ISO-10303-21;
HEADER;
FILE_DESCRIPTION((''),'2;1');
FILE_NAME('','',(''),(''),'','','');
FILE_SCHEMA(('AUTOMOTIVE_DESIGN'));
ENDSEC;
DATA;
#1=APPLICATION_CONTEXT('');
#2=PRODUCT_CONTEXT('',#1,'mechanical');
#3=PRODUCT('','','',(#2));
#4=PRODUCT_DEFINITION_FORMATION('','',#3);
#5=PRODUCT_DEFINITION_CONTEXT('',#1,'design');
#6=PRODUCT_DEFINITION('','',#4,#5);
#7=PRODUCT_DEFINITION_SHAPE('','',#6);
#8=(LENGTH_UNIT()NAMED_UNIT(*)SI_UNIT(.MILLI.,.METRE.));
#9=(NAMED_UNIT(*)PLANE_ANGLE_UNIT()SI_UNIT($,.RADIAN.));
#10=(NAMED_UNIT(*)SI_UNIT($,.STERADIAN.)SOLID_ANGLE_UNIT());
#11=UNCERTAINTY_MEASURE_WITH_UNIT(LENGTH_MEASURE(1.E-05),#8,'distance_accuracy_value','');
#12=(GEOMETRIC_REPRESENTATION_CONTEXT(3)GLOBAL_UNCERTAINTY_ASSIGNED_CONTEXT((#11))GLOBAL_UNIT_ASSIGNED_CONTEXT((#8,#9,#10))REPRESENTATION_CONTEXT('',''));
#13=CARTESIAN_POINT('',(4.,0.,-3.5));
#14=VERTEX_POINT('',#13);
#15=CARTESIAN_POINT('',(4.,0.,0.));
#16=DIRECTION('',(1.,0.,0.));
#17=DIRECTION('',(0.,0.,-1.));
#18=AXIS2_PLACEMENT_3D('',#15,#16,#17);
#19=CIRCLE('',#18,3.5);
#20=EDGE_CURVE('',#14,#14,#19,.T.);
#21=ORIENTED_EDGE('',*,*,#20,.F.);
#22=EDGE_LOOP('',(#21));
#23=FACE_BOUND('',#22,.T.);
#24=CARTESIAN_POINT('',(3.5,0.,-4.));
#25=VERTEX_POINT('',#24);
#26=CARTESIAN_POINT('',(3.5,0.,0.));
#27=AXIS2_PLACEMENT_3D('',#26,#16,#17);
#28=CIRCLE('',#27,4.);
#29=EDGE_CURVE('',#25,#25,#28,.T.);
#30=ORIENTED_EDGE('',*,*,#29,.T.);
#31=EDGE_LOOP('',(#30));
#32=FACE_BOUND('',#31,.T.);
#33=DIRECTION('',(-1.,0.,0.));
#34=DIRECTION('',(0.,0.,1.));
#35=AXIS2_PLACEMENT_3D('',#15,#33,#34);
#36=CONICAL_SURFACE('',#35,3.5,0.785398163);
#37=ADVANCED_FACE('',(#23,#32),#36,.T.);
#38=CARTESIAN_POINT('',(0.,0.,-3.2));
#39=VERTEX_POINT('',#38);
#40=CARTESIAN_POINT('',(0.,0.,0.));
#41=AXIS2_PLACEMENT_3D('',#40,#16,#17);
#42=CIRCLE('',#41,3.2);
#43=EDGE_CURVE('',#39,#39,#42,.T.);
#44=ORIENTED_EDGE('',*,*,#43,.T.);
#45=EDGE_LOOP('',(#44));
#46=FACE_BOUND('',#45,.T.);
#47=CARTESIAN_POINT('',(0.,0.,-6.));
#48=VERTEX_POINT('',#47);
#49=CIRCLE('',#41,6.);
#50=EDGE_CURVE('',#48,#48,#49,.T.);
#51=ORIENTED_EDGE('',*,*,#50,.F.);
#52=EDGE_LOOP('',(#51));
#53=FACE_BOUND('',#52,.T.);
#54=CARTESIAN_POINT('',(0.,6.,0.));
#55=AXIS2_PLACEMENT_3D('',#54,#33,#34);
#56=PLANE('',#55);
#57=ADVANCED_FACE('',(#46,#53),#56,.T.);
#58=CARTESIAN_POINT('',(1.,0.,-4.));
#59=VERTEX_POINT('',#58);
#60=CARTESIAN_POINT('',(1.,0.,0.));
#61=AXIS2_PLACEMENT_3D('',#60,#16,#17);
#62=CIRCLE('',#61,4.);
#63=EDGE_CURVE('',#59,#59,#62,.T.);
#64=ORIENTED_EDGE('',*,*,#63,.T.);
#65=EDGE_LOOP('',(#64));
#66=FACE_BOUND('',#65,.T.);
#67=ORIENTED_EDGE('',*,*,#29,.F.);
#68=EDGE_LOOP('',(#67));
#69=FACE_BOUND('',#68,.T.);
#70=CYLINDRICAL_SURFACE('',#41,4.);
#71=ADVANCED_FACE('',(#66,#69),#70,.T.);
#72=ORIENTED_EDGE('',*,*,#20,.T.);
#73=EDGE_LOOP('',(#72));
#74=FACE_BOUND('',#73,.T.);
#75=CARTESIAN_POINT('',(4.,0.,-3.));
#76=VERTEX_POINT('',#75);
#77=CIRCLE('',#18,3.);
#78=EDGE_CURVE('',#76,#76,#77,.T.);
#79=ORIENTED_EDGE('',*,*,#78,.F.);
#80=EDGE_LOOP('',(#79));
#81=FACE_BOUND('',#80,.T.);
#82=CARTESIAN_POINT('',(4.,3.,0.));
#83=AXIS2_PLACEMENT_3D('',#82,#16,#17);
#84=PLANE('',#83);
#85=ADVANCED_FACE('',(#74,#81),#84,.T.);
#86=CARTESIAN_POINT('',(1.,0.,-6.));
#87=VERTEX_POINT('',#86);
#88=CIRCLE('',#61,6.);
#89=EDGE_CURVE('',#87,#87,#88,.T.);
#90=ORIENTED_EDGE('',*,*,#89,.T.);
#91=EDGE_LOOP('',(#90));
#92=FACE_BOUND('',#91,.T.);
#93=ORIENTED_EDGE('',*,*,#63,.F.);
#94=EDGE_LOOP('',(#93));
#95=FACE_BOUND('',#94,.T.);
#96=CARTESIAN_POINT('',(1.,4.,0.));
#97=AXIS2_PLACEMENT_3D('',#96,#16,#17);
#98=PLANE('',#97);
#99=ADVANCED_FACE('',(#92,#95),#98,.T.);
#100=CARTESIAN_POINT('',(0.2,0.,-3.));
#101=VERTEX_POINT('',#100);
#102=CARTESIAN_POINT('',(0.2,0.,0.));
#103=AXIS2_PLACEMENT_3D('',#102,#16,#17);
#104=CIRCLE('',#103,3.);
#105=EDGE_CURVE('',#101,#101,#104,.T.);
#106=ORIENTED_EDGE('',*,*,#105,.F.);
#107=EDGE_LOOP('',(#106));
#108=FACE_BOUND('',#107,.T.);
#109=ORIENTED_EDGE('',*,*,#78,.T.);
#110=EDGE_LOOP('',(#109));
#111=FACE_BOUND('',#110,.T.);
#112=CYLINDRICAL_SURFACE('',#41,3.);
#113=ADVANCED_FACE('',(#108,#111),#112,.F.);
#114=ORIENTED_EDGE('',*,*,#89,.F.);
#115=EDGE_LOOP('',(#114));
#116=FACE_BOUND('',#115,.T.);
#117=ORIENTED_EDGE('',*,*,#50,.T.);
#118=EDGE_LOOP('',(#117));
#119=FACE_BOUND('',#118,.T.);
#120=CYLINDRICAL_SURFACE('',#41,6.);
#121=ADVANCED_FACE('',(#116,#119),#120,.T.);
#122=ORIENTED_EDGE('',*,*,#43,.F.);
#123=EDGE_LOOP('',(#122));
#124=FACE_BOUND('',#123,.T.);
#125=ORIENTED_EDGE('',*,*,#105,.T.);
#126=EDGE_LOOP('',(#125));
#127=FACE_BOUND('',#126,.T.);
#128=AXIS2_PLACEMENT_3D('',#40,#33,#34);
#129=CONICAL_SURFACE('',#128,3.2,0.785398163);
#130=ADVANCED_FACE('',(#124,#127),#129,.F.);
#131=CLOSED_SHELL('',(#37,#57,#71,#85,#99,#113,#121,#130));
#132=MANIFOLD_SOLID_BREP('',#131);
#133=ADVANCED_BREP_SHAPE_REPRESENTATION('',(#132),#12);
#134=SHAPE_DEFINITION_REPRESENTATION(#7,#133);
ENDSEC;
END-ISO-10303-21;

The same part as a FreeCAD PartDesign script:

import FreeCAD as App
import Part
import Sketcher

V = App.Vector
Q = App.Units.Quantity


def add_polygon(sketch, points):
    """Adds a closed chain of lines whose ends are joined by coincident constraints."""
    first, n = sketch.GeometryCount, len(points)
    for a, b in zip(points, points[1:] + points[:1]):
        sketch.addGeometry(Part.LineSegment(App.Vector(*a, 0), App.Vector(*b, 0)), False)
    for i in range(n):
        sketch.addConstraint(Sketcher.Constraint("Coincident", first + i, 2, first + (i + 1) % n, 1))

doc = App.newDocument("Part")
params = doc.addObject("Spreadsheet::Sheet", "Params")
for row, (alias, value) in enumerate([
    ("sketch1_width", "1 mm"),
    ("sketch1_height", "2 mm"),
    ("sketch1_width2", "3.8 mm"),
    ("sketch1_width3", "2.5 mm"),
    ("sketch1_height2", "2.8 mm"),
    ("revolution_angle", "360 deg"),
], start=1):
    params.set(f"A{row}", alias)
    params.set(f"B{row}", "=" + value)
    params.setAlias(f"B{row}", alias)

body = doc.addObject("PartDesign::Body", "Body")

# Sketch on XY plane
sketch1 = body.newObject("Sketcher::SketchObject", "Sketch")
sketch1.AttachmentSupport = (doc.getObject("XY_Plane"), [""])
sketch1.MapMode = "FlatFace"
add_polygon(sketch1, [(0, 6), (0, 3.2), (0.2, 3), (4, 3), (4, 3.5), (3.5, 4), (1, 4), (1, 6)])  # lines 0-7
sketch1.addConstraint(Sketcher.Constraint("Vertical", 0))
sketch1.addConstraint(Sketcher.Constraint("Horizontal", 2))
sketch1.addConstraint(Sketcher.Constraint("Vertical", 3))
sketch1.addConstraint(Sketcher.Constraint("Horizontal", 5))
sketch1.addConstraint(Sketcher.Constraint("Vertical", 6))
sketch1.addConstraint(Sketcher.Constraint("Horizontal", 7))
sketch1.addConstraint(Sketcher.Constraint("PointOnObject", 0, 2, -2))
sketch1.addConstraint(Sketcher.Constraint("Parallel", 1, 4))
sketch1.addConstraint(Sketcher.Constraint("DistanceX", 7, 2, 7, 1, Q("1 mm")))
sketch1.addConstraint(Sketcher.Constraint("DistanceY", 6, 1, 6, 2, Q("2 mm")))
sketch1.addConstraint(Sketcher.Constraint("Angle", 1, Q("-45 deg")))
sketch1.addConstraint(Sketcher.Constraint("DistanceX", 2, 1, 2, 2, Q("3.8 mm")))
sketch1.addConstraint(Sketcher.Constraint("DistanceX", 5, 2, 5, 1, Q("2.5 mm")))
sketch1.addConstraint(Sketcher.Constraint("DistanceY", 0, 2, 0, 1, Q("2.8 mm")))
sketch1.addConstraint(Sketcher.Constraint("DistanceY", -1, 1, 1, 2, Q("3 mm")))
sketch1.addConstraint(Sketcher.Constraint("DistanceX", -1, 1, 2, 2, Q("4 mm")))
sketch1.setExpression("Constraints[16]", "Params.sketch1_width")
sketch1.setExpression("Constraints[17]", "Params.sketch1_height")
sketch1.setExpression("Constraints[19]", "Params.sketch1_width2")
sketch1.setExpression("Constraints[20]", "Params.sketch1_width3")
sketch1.setExpression("Constraints[21]", "Params.sketch1_height2")
revolution = body.newObject("PartDesign::Revolution", "Revolution")
revolution.Profile = sketch1
revolution.ReferenceAxis = (sketch1, ["H_Axis"])
revolution.setExpression("Angle", "Params.revolution_angle")

doc.recompute()
